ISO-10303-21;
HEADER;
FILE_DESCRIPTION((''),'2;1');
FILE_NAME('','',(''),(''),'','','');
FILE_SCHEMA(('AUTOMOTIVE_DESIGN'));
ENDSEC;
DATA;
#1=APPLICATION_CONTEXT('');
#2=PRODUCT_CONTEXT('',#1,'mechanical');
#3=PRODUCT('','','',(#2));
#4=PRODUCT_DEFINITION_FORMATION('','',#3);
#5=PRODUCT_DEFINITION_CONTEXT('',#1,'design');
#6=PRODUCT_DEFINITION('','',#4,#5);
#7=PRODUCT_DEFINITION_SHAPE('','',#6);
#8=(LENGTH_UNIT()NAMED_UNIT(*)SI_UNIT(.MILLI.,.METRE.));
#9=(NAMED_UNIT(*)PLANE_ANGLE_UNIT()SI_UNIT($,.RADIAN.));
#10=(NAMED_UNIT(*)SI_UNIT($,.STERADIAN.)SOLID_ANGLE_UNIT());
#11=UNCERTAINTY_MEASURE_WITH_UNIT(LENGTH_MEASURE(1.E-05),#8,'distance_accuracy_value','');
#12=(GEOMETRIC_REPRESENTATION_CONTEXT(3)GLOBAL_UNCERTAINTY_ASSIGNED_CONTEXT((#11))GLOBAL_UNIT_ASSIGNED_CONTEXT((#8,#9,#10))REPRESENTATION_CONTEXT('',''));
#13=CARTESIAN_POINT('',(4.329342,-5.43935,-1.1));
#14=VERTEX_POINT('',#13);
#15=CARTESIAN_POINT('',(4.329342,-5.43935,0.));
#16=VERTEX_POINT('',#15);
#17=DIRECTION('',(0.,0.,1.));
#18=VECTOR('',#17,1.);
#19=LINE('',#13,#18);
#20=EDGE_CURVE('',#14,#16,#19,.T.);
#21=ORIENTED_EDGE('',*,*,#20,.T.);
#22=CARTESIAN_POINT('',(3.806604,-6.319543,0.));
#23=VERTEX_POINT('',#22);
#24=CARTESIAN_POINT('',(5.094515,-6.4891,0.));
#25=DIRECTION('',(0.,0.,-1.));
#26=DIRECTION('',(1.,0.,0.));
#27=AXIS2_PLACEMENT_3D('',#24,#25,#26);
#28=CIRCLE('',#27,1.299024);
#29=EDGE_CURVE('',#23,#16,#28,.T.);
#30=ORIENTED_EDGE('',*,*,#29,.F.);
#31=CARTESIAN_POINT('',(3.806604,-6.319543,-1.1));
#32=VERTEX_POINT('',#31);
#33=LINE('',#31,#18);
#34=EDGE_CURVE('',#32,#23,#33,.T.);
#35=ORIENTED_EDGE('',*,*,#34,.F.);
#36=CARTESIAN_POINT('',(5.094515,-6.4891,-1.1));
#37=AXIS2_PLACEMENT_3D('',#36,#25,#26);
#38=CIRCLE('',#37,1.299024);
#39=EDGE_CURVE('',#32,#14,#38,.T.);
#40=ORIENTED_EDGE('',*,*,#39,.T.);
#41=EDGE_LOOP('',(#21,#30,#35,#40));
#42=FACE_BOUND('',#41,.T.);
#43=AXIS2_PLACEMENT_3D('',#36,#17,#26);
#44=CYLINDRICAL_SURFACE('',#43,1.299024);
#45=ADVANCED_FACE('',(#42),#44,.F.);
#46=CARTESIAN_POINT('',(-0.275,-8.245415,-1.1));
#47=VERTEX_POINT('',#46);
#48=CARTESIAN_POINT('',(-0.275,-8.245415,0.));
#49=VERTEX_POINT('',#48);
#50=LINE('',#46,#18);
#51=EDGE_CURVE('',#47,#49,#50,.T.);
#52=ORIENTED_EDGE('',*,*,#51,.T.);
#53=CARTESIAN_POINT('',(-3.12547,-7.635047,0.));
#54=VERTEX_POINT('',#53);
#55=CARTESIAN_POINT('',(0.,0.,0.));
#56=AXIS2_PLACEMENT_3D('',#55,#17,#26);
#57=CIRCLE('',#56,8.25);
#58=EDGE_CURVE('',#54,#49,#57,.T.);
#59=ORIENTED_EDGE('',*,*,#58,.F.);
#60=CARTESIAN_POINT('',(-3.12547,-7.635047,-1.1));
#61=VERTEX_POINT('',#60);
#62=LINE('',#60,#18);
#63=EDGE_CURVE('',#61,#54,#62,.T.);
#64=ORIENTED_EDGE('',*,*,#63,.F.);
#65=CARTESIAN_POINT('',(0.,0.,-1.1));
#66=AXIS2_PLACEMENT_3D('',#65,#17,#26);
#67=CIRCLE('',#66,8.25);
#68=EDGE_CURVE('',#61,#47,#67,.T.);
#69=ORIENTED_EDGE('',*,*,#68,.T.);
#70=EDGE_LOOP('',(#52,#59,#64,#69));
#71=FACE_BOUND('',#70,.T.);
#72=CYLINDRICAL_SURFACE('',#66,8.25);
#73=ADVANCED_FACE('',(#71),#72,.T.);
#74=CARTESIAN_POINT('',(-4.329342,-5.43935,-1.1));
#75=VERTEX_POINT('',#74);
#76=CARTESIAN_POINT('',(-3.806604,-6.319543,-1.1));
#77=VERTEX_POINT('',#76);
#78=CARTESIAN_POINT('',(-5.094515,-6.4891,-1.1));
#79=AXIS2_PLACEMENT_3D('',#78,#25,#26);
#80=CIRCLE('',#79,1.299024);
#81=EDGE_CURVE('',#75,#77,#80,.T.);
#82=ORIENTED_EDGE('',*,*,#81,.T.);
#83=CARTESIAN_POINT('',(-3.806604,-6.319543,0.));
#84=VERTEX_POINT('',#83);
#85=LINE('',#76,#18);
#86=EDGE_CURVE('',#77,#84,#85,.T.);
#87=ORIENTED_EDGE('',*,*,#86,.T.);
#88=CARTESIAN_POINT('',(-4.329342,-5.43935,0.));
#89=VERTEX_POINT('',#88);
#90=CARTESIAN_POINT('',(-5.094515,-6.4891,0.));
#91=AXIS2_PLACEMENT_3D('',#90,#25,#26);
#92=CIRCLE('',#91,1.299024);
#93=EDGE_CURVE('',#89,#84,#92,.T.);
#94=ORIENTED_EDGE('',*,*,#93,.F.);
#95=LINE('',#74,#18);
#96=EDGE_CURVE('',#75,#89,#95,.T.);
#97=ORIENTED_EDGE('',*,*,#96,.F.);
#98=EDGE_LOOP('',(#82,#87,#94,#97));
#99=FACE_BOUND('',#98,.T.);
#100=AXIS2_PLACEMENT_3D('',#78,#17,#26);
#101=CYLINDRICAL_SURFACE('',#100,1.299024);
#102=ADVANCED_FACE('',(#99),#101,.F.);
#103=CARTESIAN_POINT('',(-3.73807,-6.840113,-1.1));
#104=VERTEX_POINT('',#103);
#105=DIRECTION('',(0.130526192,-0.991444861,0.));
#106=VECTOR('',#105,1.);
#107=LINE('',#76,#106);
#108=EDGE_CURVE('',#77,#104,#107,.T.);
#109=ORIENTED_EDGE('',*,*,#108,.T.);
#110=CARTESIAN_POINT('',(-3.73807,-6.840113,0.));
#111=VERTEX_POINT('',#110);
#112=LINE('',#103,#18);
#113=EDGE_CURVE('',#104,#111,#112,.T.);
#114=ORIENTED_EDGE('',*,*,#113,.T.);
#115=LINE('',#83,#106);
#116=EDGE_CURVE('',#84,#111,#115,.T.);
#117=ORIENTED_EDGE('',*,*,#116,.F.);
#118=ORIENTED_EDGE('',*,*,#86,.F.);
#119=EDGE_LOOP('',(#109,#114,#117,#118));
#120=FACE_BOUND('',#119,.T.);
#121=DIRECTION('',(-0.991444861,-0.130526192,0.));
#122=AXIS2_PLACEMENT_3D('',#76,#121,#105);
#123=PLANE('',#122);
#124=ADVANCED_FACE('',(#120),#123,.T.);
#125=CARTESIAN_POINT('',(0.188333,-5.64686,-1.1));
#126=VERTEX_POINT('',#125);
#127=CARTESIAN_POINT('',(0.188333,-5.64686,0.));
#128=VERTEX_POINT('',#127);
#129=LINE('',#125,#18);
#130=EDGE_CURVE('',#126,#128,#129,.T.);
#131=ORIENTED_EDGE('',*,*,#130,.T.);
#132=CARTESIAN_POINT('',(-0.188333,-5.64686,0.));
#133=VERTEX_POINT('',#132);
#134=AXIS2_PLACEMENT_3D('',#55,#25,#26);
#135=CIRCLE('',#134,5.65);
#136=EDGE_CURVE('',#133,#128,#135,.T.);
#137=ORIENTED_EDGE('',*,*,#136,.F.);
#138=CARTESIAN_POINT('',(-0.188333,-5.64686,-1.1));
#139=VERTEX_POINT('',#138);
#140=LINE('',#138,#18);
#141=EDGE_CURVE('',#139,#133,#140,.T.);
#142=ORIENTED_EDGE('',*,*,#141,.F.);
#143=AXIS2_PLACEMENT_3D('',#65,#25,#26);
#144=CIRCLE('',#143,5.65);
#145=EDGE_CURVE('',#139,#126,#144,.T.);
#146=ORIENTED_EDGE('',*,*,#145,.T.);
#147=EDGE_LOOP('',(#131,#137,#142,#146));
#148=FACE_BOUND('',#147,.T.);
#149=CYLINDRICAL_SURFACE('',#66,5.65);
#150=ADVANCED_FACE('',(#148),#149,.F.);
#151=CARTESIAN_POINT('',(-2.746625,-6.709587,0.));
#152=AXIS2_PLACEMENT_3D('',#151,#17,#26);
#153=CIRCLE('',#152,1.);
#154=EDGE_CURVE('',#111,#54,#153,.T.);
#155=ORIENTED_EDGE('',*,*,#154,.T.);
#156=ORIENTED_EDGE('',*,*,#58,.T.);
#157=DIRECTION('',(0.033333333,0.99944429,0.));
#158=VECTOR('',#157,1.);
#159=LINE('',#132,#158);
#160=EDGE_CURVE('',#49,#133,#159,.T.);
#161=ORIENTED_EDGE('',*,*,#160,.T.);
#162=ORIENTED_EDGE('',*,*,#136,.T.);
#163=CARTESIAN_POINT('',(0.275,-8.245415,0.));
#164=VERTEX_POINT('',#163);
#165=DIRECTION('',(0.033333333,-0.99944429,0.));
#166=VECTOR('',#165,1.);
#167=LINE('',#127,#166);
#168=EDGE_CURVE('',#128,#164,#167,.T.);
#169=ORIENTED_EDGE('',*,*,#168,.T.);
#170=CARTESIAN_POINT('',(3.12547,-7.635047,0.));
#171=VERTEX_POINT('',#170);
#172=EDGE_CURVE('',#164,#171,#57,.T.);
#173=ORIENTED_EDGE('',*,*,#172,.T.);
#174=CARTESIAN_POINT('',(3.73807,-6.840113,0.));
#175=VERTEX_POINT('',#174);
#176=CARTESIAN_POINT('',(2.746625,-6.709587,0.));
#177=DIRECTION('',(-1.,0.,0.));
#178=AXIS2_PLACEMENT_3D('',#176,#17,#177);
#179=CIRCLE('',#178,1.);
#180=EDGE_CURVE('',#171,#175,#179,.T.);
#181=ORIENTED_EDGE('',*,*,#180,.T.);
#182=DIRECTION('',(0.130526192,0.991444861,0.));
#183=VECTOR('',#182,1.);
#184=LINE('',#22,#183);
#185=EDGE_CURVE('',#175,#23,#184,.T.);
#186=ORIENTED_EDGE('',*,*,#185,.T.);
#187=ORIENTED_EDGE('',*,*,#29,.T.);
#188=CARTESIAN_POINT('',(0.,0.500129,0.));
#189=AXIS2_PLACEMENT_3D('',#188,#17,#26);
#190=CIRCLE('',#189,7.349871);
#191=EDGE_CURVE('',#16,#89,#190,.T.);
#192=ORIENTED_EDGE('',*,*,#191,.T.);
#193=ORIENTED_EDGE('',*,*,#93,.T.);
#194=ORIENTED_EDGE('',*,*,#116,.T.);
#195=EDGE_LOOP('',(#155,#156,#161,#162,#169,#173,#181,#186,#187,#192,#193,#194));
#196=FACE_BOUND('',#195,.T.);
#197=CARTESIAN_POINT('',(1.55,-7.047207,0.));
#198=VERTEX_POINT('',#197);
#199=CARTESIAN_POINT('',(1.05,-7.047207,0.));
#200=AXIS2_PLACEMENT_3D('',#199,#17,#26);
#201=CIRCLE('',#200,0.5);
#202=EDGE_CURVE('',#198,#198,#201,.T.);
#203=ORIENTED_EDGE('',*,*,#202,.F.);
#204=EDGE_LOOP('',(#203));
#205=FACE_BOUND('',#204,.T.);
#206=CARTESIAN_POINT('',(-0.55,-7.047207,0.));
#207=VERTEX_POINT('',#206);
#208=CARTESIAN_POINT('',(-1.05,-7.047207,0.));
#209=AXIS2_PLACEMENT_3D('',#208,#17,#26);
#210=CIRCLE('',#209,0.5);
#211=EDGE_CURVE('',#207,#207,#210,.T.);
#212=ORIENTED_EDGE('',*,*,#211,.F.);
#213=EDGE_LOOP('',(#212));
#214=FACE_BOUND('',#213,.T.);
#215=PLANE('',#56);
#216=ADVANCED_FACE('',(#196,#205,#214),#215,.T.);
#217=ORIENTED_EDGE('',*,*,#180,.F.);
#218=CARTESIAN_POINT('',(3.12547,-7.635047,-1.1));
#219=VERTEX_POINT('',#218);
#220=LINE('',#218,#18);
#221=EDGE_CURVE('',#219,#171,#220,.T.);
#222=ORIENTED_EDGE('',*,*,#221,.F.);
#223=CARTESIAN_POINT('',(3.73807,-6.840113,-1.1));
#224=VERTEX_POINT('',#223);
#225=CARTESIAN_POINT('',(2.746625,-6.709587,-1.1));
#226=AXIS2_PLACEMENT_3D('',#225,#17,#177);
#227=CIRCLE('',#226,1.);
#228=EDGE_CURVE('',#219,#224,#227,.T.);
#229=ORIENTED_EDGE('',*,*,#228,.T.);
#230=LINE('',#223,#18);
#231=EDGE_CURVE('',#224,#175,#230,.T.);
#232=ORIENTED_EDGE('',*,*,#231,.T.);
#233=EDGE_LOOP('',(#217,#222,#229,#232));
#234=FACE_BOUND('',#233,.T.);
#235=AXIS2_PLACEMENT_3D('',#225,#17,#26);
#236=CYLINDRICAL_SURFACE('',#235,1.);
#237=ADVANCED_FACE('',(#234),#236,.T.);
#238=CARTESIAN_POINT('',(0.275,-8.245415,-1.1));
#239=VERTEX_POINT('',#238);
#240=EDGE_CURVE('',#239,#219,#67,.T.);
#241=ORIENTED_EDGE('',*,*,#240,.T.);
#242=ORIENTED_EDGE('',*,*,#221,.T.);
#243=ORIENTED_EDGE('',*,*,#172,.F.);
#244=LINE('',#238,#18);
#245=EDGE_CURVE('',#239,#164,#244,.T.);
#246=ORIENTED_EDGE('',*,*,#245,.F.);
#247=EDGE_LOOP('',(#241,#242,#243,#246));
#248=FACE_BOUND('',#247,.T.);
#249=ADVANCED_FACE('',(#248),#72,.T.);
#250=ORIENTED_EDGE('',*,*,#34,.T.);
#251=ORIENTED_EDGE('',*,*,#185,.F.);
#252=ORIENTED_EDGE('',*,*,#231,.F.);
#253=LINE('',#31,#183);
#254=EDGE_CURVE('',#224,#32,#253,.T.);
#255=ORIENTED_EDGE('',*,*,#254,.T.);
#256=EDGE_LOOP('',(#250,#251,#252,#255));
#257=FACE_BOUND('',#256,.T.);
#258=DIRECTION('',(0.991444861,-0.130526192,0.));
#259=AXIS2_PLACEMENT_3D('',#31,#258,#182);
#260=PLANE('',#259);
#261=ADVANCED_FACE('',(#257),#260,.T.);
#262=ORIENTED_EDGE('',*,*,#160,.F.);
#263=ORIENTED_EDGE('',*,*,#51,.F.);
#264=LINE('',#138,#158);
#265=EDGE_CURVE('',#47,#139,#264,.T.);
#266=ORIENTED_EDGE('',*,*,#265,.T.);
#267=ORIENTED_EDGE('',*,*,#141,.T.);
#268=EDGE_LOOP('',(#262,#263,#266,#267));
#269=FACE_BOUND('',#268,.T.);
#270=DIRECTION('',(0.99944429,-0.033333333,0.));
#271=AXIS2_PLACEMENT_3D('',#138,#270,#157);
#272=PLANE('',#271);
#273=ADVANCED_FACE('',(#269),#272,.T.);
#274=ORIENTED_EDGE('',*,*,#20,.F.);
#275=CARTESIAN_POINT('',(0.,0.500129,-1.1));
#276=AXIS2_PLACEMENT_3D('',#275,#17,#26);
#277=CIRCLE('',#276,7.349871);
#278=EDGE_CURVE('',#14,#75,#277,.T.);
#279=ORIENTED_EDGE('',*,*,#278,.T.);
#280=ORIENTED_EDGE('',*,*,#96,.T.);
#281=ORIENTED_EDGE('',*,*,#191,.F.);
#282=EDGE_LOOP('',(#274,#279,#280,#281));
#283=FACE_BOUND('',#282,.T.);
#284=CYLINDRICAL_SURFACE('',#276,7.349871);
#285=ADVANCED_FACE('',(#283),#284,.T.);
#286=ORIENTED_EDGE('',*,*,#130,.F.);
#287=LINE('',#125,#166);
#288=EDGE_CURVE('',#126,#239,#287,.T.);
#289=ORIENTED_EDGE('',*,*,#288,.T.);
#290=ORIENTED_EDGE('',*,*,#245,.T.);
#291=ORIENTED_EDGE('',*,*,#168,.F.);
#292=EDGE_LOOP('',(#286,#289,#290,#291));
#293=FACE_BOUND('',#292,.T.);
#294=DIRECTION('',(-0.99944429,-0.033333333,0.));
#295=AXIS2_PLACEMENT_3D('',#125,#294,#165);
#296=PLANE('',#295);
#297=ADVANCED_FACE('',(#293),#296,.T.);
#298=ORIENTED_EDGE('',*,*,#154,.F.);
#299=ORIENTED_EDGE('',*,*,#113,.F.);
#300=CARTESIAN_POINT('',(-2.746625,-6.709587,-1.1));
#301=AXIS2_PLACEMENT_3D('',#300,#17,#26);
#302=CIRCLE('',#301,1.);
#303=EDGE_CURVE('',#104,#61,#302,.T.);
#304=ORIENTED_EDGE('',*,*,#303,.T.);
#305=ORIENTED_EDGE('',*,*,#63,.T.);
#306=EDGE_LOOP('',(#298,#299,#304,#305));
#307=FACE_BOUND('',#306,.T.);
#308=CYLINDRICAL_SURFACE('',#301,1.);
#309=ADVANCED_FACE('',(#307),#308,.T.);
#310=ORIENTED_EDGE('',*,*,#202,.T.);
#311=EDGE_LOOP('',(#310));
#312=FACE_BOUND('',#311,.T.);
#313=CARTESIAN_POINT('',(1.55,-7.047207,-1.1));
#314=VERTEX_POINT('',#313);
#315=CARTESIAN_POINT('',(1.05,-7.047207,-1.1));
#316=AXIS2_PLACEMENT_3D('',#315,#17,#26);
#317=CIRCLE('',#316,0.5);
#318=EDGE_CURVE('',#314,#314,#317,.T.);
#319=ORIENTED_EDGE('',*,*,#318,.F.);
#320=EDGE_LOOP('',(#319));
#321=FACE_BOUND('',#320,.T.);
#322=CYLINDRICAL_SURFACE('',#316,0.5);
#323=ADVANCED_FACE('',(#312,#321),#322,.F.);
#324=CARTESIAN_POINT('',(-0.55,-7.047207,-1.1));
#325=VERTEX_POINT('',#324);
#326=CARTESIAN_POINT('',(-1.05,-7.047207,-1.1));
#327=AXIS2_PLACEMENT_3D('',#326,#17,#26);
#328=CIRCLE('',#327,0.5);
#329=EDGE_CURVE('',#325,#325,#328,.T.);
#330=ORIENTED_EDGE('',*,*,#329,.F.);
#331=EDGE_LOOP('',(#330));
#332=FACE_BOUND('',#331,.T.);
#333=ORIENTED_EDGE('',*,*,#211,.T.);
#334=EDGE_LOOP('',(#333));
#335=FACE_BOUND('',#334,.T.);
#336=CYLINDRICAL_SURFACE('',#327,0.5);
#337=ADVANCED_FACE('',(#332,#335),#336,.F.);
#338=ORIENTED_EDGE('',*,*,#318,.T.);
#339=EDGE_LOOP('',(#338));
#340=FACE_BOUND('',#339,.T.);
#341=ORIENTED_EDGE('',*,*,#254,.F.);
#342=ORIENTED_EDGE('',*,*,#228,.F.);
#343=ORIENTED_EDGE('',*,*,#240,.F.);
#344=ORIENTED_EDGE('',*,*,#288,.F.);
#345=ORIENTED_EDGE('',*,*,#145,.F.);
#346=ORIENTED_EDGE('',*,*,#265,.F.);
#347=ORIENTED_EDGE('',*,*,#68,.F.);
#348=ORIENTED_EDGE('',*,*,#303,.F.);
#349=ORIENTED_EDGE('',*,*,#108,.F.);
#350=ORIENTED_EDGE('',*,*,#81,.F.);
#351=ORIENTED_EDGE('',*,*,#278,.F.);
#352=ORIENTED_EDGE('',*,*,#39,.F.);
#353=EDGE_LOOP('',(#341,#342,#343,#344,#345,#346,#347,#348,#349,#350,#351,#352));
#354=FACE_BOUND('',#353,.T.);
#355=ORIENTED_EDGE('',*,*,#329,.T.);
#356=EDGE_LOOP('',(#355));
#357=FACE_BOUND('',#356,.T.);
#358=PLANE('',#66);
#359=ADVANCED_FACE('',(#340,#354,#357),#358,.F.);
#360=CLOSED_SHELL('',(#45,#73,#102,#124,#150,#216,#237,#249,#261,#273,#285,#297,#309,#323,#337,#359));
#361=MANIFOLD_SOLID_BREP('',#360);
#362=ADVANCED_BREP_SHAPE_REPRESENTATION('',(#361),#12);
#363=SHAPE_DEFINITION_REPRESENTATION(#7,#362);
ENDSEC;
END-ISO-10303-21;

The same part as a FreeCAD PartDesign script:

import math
import FreeCAD as App
import Part
import Sketcher

V = App.Vector
Q = App.Units.Quantity

doc = App.newDocument("Part")
body = doc.addObject("PartDesign::Body", "Body")

# Sketch on XY plane
sketch1 = body.newObject("Sketcher::SketchObject", "Sketch")
sketch1.AttachmentSupport = (doc.getObject("XY_Plane"), [""])
sketch1.MapMode = "FlatFace"
sketch1.addGeometry(Part.LineSegment(V(0.19, -5.65, 0), V(0.28, -8.25, 0)), False)
sketch1.addGeometry(Part.ArcOfCircle(Part.Circle(V(0, 0, 0), V(0, 0, 1), 8.25), math.radians(-88), math.radians(-68)), False)
sketch1.addGeometry(Part.ArcOfCircle(Part.Circle(V(2.75, -6.71, 0), V(0, 0, 1), 1), math.radians(-68), math.radians(-8)), False)
sketch1.addGeometry(Part.LineSegment(V(3.74, -6.84, 0), V(3.81, -6.32, 0)), False)
sketch1.addGeometry(Part.ArcOfCircle(Part.Circle(V(5.09, -6.49, 0), V(0, 0, 1), 1.3), math.radians(126), math.radians(173)), False)
sketch1.addGeometry(Part.ArcOfCircle(Part.Circle(V(0, 0.5, 0), V(0, 0, 1), 7.35), math.radians(-54), math.radians(234)), False)
sketch1.addGeometry(Part.ArcOfCircle(Part.Circle(V(-5.09, -6.49, 0), V(0, 0, 1), 1.3), math.radians(7), math.radians(54)), False)
sketch1.addGeometry(Part.LineSegment(V(-3.81, -6.32, 0), V(-3.74, -6.84, 0)), False)
sketch1.addGeometry(Part.ArcOfCircle(Part.Circle(V(-2.75, -6.71, 0), V(0, 0, 1), 1), math.radians(-172), math.radians(-112)), False)
sketch1.addGeometry(Part.ArcOfCircle(Part.Circle(V(0, 0, 0), V(0, 0, 1), 8.25), math.radians(-112), math.radians(-92)), False)
sketch1.addGeometry(Part.LineSegment(V(-0.28, -8.25, 0), V(-0.19, -5.65, 0)), False)
sketch1.addGeometry(Part.ArcOfCircle(Part.Circle(V(0, 0, 0), V(0, 0, 1), 5.65), math.radians(-88), math.radians(268)), False)
sketch1.addGeometry(Part.Circle(V(-1.05, -7.05, 0), V(0, 0, 1), 0.5), False)
sketch1.addGeometry(Part.Circle(V(1.05, -7.05, 0), V(0, 0, 1), 0.5), False)
sketch1.addConstraint(Sketcher.Constraint("Coincident", 0, 2, 1, 1))
sketch1.addConstraint(Sketcher.Constraint("Tangent", 1, 2, 2, 1))
sketch1.addConstraint(Sketcher.Constraint("Tangent", 2, 2, 3, 1))
sketch1.addConstraint(Sketcher.Constraint("Tangent", 3, 2, 4, 2))
sketch1.addConstraint(Sketcher.Constraint("Tangent", 4, 1, 5, 1))
sketch1.addConstraint(Sketcher.Constraint("Tangent", 5, 2, 6, 2))
sketch1.addConstraint(Sketcher.Constraint("Tangent", 6, 1, 7, 1))
sketch1.addConstraint(Sketcher.Constraint("Tangent", 7, 2, 8, 1))
sketch1.addConstraint(Sketcher.Constraint("Tangent", 8, 2, 9, 1))
sketch1.addConstraint(Sketcher.Constraint("Coincident", 9, 2, 10, 1))
sketch1.addConstraint(Sketcher.Constraint("Coincident", 10, 2, 11, 2))
sketch1.addConstraint(Sketcher.Constraint("Coincident", 11, 1, 0, 1))
sketch1.addConstraint(Sketcher.Constraint("Coincident", 1, 3, -1, 1))
sketch1.addConstraint(Sketcher.Constraint("Coincident", 9, 3, -1, 1))
sketch1.addConstraint(Sketcher.Constraint("Coincident", 11, 3, -1, 1))
sketch1.addConstraint(Sketcher.Constraint("Equal", 4, 6))
sketch1.addConstraint(Sketcher.Constraint("Equal", 2, 8))
sketch1.addConstraint(Sketcher.Constraint("Equal", 1, 9))
sketch1.addConstraint(Sketcher.Constraint("Equal", 12, 13))
sketch1.addConstraint(Sketcher.Constraint("Symmetric", 4, 3, 6, 3, -2))
sketch1.addConstraint(Sketcher.Constraint("Symmetric", 12, 3, 13, 3, -2))
sketch1.addConstraint(Sketcher.Constraint("Horizontal", 2, 3, 8, 3))
sketch1.addConstraint(Sketcher.Constraint("Horizontal", 0, 2, 9, 2))
sketch1.addConstraint(Sketcher.Constraint("Horizontal", 10, 2, 11, 1))
sketch1.addConstraint(Sketcher.Constraint("Diameter", 12, 1.0))
sketch1.addConstraint(Sketcher.Constraint("Radius", 2, 1.0))
sketch1.addConstraint(Sketcher.Constraint("Radius", 1, 8.25))
sketch1.addConstraint(Sketcher.Constraint("Radius", 11, 5.65))
sketch1.addConstraint(Sketcher.Constraint("Angle", 3, Q("82.5 deg")))
sketch1.addConstraint(Sketcher.Constraint("DistanceX", 12, 3, 13, 3, 2.1))
sketch1.addConstraint(Sketcher.Constraint("Radius", 5, 7.349871))
sketch1.addConstraint(Sketcher.Constraint("DistanceX", 9, 2, 0, 2, 0.55))
sketch1.addConstraint(Sketcher.Constraint("Radius", 4, 1.299024))
sketch1.addConstraint(Sketcher.Constraint("DistanceY", 4, 3, -1, 1, 6.4891))
sketch1.addConstraint(Sketcher.Constraint("DistanceX", 1, 2, 2, 2, 0.6126))
sketch1.addConstraint(Sketcher.Constraint("DistanceY", 10, 2, -1, 1, 5.64686))
sketch1.addConstraint(Sketcher.Constraint("DistanceY", 12, 3, 8, 3, 0.33762))
pad1 = body.newObject("PartDesign::Pad", "Pad")
pad1.Profile = sketch1
pad1.Length = 1.1
pad1.Reversed = True

doc.recompute()
